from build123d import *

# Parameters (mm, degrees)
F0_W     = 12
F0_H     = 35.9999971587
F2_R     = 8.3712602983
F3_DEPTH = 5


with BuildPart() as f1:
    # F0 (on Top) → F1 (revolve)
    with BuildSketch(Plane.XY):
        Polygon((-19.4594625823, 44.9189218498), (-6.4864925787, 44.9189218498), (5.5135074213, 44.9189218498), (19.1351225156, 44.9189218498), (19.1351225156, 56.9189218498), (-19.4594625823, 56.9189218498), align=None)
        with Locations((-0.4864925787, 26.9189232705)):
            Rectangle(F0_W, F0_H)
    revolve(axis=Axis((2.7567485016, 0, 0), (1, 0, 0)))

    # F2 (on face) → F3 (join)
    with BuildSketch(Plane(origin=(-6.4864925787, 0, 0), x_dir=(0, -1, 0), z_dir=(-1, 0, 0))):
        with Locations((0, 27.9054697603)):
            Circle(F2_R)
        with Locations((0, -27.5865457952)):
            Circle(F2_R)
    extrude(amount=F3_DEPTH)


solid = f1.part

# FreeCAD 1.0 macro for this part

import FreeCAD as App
import Part
import Sketcher
from FreeCAD import Vector
Q = App.Units.Quantity


def add_polygon(sketch, points):
    """Adds a closed chain of lines whose ends are joined by coincident constraints."""
    first, n = sketch.GeometryCount, len(points)
    for a, b in zip(points, points[1:] + points[:1]):
        sketch.addGeometry(Part.LineSegment(App.Vector(*a, 0), App.Vector(*b, 0)), False)
    for i in range(n):
        sketch.addConstraint(Sketcher.Constraint("Coincident", first + i, 2, first + (i + 1) % n, 1))

doc = App.newDocument("Part")
params = doc.addObject("Spreadsheet::Sheet", "Params")
for row, (alias, value) in enumerate([
    ("sketch1_width", "12 mm"),
    ("revolution_angle", "360 deg"),
    ("pad1_length", "5 mm"),
], start=1):
    params.set(f"A{row}", alias)
    params.set(f"B{row}", "=" + value)
    params.setAlias(f"B{row}", alias)

body = doc.addObject("PartDesign::Body", "Body")

sketch1 = body.newObject("Sketcher::SketchObject", "Sketch")
sketch1.AttachmentSupport = (doc.getObject("XY_Plane"), [""])
sketch1.MapMode = "FlatFace"
add_polygon(sketch1, [(-19, 45), (-6, 45), (-6, 9), (6, 9), (6, 45), (19, 45), (19, 57), (-19, 57)])
sketch1.addConstraint(Sketcher.Constraint("Horizontal", 0))
sketch1.addConstraint(Sketcher.Constraint("Vertical", 1))
sketch1.addConstraint(Sketcher.Constraint("Horizontal", 2))
sketch1.addConstraint(Sketcher.Constraint("Vertical", 3))
sketch1.addConstraint(Sketcher.Constraint("Horizontal", 4))
sketch1.addConstraint(Sketcher.Constraint("Vertical", 5))
sketch1.addConstraint(Sketcher.Constraint("Horizontal", 6))
sketch1.addConstraint(Sketcher.Constraint("Vertical", 7))
sketch1.addConstraint(Sketcher.Constraint("Horizontal", 0, 2, 3, 2))
sketch1.addConstraint(Sketcher.Constraint("Equal", 2, 5))
sketch1.addConstraint(Sketcher.Constraint("DistanceX", 2, 1, 2, 2, Q("12 mm")))
sketch1.addConstraint(Sketcher.Constraint("DistanceX", 0, 1, 0, 2, Q("12.97297 mm")))
sketch1.addConstraint(Sketcher.Constraint("DistanceX", 4, 1, 4, 2, Q("13.621615 mm")))
sketch1.addConstraint(Sketcher.Constraint("DistanceY", 1, 2, 1, 1, Q("35.999997 mm")))
sketch1.addConstraint(Sketcher.Constraint("DistanceY", -1, 1, 0, 2, Q("44.918922 mm")))
sketch1.addConstraint(Sketcher.Constraint("DistanceX", 0, 2, -1, 1, Q("6.486493 mm")))
sketch1.setExpression("Constraints[18]", "Params.sketch1_width")
revolution = body.newObject("PartDesign::Revolution", "Revolution")
revolution.Profile = sketch1
revolution.ReferenceAxis = (sketch1, ["H_Axis"])
revolution.setExpression("Angle", "Params.revolution_angle")

sketch2 = body.newObject("Sketcher::SketchObject", "Sketch001")
sketch2.AttachmentSupport = (doc.getObject("YZ_Plane"), [""])
sketch2.MapMode = "FlatFace"
sketch2.AttachmentOffset = App.Placement(Vector(0, 0, -6.486493), App.Rotation())
sketch2.addGeometry(Part.Circle(Vector(0, 28, 0), Vector(0, 0, 1), 8), False)
sketch2.addGeometry(Part.Circle(Vector(0, -28, 0), Vector(0, 0, 1), 8), False)
sketch2.addConstraint(Sketcher.Constraint("Equal", 0, 1))
sketch2.addConstraint(Sketcher.Constraint("PointOnObject", 0, 3, -2))
sketch2.addConstraint(Sketcher.Constraint("PointOnObject", 1, 3, -2))
sketch2.addConstraint(Sketcher.Constraint("Diameter", 0, Q("16.742521 mm")))
sketch2.addConstraint(Sketcher.Constraint("DistanceY", -1, 1, 0, 3, Q("27.90547 mm")))
sketch2.addConstraint(Sketcher.Constraint("DistanceY", 1, 3, -1, 1, Q("27.586546 mm")))
pad1 = body.newObject("PartDesign::Pad", "Pad")
pad1.Profile = sketch2
pad1.setExpression("Length", "Params.pad1_length")
pad1.Reversed = True

doc.recompute()
